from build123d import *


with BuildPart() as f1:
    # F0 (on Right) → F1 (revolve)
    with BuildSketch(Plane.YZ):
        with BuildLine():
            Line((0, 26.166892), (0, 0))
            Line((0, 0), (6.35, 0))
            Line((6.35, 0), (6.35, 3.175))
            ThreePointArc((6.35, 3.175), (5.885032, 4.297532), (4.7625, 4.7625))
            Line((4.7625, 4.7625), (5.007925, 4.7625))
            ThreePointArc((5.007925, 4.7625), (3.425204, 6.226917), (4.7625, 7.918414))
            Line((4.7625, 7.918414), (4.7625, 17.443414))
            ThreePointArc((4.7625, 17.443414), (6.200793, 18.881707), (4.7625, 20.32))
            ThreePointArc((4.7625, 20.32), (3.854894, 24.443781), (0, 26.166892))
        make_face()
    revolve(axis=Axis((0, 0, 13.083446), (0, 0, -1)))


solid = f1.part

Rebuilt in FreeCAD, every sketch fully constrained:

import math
import FreeCAD as App
import Part
import Sketcher
Q = App.Units.Quantity

doc = App.newDocument("Part")
body = doc.addObject("PartDesign::Body", "Body")

# Sketch on YZ plane
sketch1 = body.newObject("Sketcher::SketchObject", "Sketch")
sketch1.AttachmentSupport = (doc.getObject("YZ_Plane"), [""])
sketch1.MapMode = "FlatFace"
sketch1.addGeometry([
    Part.LineSegment(App.Vector(0, 26.17, 0), App.Vector(0, 0, 0)),  # 0
    Part.LineSegment(App.Vector(0, 0, 0), App.Vector(6.35, 0, 0)),  # 1
    Part.LineSegment(App.Vector(6.35, 0, 0), App.Vector(6.35, 3.17, 0)),  # 2
    Part.ArcOfCircle(Part.Circle(App.Vector(4.76, 3.17, 0), App.Vector(0, 0, 1), 1.59), math.radians(0), math.radians(90)),  # 3
    Part.LineSegment(App.Vector(4.76, 4.76, 0), App.Vector(5.01, 4.76, 0)),  # 4
    Part.ArcOfCircle(Part.Circle(App.Vector(5.01, 6.35, 0), App.Vector(0, 0, 1), 1.59), math.radians(99), math.radians(270)),  # 5
    Part.LineSegment(App.Vector(4.76, 7.92, 0), App.Vector(4.76, 17.44, 0)),  # 6
    Part.ArcOfCircle(Part.Circle(App.Vector(4.76, 18.88, 0), App.Vector(0, 0, 1), 1.44), math.radians(-90), math.radians(90)),  # 7
    Part.ArcOfCircle(Part.Circle(App.Vector(0.22, 21.48, 0), App.Vector(0, 0, 1), 4.69), math.radians(-14), math.radians(93)),  # 8
], False)
sketch1.addConstraint([
    Sketcher.Constraint("Coincident", 0, 2, 1, 1),
    Sketcher.Constraint("Coincident", 1, 2, 2, 1),
    Sketcher.Constraint("Tangent", 2, 2, 3, 1),
    Sketcher.Constraint("Tangent", 3, 2, 4, 1),
    Sketcher.Constraint("Tangent", 4, 2, 5, 2),
    Sketcher.Constraint("Coincident", 5, 1, 6, 1),
    Sketcher.Constraint("Coincident", 6, 2, 7, 1),
    Sketcher.Constraint("Coincident", 7, 2, 8, 1),
    Sketcher.Constraint("Coincident", 8, 2, 0, 1),
    Sketcher.Constraint("Vertical", 0),
    Sketcher.Constraint("Horizontal", 1),
    Sketcher.Constraint("Vertical", 2),
    Sketcher.Constraint("Horizontal", 4),
    Sketcher.Constraint("Vertical", 6),
    Sketcher.Constraint("Coincident", 0, 2, -1, 1),
    Sketcher.Constraint("Equal", 3, 5),
    Sketcher.Constraint("Vertical", 3, 3, 7, 3),
    Sketcher.Constraint("Vertical", 3, 2, 5, 1),
    Sketcher.Constraint("Vertical", 6, 2, 7, 2),
    Sketcher.Constraint("Radius", 3, Q("0.0625 in")),
    Sketcher.Constraint("DistanceX", 1, 1, 1, 2, Q("0.25 in")),
    Sketcher.Constraint("DistanceY", -1, 1, 7, 2, Q("0.8 in")),
    Sketcher.Constraint("DistanceY", 2, 1, 2, 2, Q("0.125 in")),
    Sketcher.Constraint("DistanceY", 6, 1, 6, 2, Q("0.375 in")),
    Sketcher.Constraint("Radius", 7, Q("1.438293 mm")),
    Sketcher.Constraint("Radius", 8, Q("4.690347 mm")),
    Sketcher.Constraint("DistanceY", 0, 2, 0, 1, Q("26.166892 mm")),
])
revolution = body.newObject("PartDesign::Revolution", "Revolution")
revolution.Profile = sketch1
revolution.ReferenceAxis = (sketch1, ["V_Axis"])
revolution.Angle = 360

doc.recompute()
